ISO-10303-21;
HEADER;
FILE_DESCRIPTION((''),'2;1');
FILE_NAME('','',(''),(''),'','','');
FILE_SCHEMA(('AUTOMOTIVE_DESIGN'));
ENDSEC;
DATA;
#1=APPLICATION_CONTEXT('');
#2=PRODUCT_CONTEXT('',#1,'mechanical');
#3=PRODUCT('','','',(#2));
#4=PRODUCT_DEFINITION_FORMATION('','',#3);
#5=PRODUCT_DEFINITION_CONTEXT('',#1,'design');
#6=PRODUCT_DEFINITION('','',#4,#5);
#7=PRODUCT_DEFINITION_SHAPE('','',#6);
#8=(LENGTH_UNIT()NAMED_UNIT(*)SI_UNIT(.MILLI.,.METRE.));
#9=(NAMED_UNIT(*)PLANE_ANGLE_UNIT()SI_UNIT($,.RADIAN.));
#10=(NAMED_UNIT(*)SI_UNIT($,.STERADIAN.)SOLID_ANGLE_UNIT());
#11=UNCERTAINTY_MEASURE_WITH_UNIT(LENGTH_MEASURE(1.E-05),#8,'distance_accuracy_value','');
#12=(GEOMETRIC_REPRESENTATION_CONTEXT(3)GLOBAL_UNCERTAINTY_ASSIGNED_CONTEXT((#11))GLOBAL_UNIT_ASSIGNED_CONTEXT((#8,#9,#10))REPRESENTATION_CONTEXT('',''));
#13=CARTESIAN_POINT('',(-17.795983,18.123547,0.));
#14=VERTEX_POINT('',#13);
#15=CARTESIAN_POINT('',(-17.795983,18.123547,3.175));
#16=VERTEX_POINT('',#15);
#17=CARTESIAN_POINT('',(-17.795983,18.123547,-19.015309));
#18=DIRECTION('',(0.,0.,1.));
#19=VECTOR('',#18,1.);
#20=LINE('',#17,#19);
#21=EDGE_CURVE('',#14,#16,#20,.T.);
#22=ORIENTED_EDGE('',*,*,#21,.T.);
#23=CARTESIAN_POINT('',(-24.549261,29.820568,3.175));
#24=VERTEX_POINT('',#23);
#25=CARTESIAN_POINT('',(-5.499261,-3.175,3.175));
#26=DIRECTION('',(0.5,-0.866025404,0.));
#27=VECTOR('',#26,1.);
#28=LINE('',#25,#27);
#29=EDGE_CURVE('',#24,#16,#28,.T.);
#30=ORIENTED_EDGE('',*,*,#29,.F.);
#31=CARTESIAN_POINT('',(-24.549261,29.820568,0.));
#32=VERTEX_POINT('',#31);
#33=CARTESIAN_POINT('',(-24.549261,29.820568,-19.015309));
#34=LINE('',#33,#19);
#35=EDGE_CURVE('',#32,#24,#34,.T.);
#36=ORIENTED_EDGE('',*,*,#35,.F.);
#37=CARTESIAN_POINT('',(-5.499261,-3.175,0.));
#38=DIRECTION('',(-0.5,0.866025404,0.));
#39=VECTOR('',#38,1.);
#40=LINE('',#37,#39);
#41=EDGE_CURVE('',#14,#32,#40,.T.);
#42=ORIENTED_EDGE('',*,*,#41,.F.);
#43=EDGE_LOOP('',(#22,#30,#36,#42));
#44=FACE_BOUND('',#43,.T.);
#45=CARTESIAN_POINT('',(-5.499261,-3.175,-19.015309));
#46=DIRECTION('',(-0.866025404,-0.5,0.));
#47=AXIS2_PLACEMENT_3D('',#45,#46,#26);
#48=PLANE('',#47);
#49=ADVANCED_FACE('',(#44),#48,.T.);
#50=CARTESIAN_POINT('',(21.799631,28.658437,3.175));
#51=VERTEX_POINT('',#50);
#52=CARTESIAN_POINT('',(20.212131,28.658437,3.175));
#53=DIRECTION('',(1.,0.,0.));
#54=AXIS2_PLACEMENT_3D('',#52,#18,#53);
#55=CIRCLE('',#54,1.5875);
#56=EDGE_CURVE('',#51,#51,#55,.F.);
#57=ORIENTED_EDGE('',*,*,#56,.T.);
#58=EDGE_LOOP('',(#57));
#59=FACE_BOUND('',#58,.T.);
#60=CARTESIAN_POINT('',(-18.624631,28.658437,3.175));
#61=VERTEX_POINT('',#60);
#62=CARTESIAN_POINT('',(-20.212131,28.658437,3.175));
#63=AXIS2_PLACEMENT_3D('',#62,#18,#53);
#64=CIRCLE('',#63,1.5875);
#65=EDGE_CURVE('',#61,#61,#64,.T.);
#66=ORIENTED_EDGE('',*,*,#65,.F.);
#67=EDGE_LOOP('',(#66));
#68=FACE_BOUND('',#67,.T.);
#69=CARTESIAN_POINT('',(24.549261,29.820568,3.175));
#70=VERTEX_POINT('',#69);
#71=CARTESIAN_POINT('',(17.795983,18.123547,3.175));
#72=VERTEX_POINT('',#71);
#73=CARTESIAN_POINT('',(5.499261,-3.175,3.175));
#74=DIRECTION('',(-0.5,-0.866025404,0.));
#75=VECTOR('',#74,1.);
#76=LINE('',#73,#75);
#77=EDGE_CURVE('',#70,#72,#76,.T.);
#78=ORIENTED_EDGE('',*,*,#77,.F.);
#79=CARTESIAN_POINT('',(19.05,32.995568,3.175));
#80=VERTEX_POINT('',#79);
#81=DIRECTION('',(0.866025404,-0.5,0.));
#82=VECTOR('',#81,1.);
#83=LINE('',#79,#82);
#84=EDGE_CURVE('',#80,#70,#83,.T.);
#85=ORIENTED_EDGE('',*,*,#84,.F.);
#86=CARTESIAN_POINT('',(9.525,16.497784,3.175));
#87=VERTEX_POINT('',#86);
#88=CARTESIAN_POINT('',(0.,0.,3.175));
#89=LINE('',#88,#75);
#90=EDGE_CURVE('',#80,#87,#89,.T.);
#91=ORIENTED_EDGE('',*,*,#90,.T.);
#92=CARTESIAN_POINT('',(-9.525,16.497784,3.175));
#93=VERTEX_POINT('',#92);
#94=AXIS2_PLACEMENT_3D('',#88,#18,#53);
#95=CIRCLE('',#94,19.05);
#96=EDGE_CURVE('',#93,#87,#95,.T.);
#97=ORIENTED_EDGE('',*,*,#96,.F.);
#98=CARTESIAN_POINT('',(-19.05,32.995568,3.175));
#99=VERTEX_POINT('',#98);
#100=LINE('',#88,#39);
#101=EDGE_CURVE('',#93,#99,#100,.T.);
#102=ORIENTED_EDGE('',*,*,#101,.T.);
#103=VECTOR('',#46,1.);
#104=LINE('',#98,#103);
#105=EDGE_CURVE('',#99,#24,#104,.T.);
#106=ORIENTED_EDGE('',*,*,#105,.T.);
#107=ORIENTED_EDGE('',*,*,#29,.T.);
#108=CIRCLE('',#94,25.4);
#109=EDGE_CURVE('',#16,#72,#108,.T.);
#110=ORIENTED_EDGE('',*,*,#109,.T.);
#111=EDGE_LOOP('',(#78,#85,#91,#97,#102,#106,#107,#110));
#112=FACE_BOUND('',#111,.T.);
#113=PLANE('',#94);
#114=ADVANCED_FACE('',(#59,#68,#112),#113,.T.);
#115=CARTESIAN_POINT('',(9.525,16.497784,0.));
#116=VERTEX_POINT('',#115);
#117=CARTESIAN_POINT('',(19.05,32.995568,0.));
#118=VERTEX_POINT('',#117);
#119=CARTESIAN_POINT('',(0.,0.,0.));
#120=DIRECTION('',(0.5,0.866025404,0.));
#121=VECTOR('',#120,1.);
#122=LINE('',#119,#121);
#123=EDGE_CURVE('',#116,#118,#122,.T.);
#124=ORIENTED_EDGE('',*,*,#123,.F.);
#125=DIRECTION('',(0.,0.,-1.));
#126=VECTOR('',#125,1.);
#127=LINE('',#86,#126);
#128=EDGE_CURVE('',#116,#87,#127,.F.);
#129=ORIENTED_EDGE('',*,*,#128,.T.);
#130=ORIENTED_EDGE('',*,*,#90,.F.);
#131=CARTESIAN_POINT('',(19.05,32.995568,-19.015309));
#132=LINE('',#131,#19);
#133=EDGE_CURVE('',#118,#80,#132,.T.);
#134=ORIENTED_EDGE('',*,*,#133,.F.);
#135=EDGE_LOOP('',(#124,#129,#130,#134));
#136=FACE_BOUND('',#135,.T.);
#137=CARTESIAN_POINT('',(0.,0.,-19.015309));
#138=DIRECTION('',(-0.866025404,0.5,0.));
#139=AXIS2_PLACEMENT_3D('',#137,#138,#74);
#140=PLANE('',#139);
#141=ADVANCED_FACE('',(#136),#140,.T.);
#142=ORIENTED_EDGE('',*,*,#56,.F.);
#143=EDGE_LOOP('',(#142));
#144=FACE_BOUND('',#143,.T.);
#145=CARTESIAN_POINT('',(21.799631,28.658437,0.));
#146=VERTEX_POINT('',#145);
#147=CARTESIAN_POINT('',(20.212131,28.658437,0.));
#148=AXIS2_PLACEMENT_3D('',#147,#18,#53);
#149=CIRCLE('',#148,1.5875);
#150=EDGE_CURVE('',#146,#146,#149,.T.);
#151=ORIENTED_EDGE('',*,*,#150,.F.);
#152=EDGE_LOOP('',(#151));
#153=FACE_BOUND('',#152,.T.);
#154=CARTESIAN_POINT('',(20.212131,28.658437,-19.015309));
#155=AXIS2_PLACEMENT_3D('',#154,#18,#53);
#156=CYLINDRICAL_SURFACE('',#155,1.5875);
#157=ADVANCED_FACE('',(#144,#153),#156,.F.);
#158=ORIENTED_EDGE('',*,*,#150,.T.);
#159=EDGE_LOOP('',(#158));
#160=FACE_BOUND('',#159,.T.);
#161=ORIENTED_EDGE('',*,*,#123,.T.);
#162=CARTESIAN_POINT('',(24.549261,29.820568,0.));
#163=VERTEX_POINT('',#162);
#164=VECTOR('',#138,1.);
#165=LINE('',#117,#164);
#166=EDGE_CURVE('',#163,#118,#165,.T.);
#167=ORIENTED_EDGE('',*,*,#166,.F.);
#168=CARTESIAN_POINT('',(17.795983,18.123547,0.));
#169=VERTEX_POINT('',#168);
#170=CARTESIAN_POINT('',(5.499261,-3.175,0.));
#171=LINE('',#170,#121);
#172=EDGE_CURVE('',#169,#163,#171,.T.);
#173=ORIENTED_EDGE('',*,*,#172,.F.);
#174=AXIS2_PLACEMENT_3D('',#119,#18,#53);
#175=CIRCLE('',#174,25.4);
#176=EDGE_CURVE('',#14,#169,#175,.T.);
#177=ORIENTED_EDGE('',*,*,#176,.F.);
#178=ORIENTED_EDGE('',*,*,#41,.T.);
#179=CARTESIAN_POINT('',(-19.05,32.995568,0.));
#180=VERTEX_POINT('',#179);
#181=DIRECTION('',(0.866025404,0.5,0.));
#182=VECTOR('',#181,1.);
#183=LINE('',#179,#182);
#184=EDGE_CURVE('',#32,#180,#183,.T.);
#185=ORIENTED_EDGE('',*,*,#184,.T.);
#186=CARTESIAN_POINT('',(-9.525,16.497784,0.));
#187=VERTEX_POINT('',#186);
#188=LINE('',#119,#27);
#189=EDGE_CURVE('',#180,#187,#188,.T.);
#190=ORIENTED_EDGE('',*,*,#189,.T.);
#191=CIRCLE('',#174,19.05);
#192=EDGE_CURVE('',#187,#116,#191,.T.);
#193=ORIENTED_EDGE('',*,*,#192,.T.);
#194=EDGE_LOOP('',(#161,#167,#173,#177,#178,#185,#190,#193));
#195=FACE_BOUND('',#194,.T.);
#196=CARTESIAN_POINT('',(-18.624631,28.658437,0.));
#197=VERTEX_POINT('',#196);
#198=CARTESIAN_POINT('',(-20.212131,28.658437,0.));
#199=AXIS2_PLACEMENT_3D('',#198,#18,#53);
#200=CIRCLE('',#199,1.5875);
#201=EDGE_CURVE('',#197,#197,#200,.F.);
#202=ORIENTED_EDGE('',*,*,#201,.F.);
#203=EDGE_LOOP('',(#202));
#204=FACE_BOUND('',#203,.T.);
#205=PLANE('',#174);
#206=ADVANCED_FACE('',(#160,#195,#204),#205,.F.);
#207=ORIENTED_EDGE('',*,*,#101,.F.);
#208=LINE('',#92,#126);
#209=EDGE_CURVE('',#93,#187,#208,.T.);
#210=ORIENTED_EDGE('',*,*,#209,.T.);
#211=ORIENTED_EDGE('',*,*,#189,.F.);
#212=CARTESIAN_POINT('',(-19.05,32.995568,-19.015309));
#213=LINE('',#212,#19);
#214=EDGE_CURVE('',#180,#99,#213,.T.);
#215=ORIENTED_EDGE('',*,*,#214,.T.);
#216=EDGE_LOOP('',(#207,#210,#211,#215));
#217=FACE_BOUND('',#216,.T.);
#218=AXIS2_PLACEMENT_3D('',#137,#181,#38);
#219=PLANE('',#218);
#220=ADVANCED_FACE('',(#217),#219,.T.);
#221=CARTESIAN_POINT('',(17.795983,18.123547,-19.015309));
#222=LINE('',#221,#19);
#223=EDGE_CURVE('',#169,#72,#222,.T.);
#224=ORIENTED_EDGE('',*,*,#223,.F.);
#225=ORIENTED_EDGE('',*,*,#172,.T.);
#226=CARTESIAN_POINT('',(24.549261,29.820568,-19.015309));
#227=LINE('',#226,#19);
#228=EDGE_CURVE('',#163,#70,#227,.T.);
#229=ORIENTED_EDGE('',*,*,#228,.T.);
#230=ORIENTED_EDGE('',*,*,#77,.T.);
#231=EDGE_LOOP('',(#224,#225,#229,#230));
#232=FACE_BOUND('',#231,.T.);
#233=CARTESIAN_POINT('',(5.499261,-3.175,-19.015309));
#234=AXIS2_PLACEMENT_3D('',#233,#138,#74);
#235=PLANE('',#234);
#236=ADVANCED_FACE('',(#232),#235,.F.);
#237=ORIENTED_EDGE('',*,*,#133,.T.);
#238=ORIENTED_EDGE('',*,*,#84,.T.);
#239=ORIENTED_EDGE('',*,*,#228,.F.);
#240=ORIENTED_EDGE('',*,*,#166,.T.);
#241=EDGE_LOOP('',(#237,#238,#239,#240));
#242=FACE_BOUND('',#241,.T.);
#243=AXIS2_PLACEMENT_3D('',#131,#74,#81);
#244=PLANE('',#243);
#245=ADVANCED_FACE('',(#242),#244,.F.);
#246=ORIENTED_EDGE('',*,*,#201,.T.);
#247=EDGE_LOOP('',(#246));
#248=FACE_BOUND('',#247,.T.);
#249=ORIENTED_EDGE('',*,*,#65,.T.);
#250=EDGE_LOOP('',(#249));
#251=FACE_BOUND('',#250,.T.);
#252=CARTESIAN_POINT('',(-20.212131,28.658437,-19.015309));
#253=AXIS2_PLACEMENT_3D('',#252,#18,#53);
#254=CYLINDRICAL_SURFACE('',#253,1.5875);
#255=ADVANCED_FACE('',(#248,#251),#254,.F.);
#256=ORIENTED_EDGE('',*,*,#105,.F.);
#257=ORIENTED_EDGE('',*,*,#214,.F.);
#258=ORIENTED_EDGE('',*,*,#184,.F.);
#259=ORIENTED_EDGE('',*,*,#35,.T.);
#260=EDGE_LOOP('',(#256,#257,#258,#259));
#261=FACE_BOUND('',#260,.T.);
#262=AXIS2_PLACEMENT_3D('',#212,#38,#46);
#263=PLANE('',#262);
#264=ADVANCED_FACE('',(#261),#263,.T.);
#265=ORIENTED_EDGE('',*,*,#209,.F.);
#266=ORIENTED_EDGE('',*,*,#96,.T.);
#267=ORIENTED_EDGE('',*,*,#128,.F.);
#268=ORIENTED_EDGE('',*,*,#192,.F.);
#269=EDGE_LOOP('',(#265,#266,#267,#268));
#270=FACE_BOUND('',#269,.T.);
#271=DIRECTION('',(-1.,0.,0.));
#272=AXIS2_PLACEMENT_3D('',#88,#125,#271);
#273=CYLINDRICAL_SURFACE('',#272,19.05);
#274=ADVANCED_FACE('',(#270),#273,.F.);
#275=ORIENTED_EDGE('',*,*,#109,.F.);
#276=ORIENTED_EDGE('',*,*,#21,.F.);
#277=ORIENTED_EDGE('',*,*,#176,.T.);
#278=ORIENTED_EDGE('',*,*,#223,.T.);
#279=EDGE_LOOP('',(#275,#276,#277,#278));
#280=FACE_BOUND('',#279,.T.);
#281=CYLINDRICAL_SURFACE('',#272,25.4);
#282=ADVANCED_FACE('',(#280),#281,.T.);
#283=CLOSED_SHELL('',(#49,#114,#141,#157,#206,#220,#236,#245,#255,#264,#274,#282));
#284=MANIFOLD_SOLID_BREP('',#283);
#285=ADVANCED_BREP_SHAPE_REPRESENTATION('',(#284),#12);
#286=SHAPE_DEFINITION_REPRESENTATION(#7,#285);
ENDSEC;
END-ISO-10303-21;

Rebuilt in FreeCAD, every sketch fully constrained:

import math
import FreeCAD as App
import Part
import Sketcher
from FreeCAD import Vector
Q = App.Units.Quantity

doc = App.newDocument("Part")
body = doc.addObject("PartDesign::Body", "Body")

# Sketch on XY plane
sketch1 = body.newObject("Sketcher::SketchObject", "Sketch")
sketch1.AttachmentSupport = (doc.getObject("XY_Plane"), [""])
sketch1.MapMode = "FlatFace"
sketch1.addGeometry(Part.Circle(Vector(0, 0, 0), Vector(0, 0, 1), 25), False)
sketch1.addGeometry(Part.Circle(Vector(0, 0, 0), Vector(0, 0, 1), 19), False)
sketch1.addConstraint(Sketcher.Constraint("Coincident", 0, 3, -1, 1))
sketch1.addConstraint(Sketcher.Constraint("Coincident", 1, 3, -1, 1))
sketch1.addConstraint(Sketcher.Constraint("Diameter", 0, Q("2 in")))
sketch1.addConstraint(Sketcher.Constraint("Diameter", 1, Q("1.5 in")))
pad1 = body.newObject("PartDesign::Pad", "Pad")
pad1.Profile = sketch1
pad1.Length = Q("0.125 in")

# Sketch on XY plane
sketch2 = body.newObject("Sketcher::SketchObject", "Sketch001")
sketch2.AttachmentSupport = (doc.getObject("XY_Plane"), [""])
sketch2.MapMode = "FlatFace"
sketch2.AttachmentOffset = App.Placement(Vector(0, 0, 0.125 * 25.4), App.Rotation())
sketch2.addGeometry(Part.ArcOfCircle(Part.Circle(Vector(0, 0, 0), Vector(0, 0, 1), 25.4), math.radians(120), math.radians(134.48)), False)
sketch2.addGeometry(Part.LineSegment(Vector(-12.7, 22, 0), Vector(-19.1, 33, 0)), False)
sketch2.addGeometry(Part.LineSegment(Vector(-19.1, 33, 0), Vector(-24.5, 29.8, 0)), False)
sketch2.addGeometry(Part.LineSegment(Vector(-24.5, 29.8, 0), Vector(-18.2, 18.8, 0)), False)
sketch2.addGeometry(Part.LineSegment(Vector(-18.2, 18.8, 0), Vector(-17.8, 18.1, 0)), False)
sketch2.addGeometry(Part.Circle(Vector(-20.2, 28.7, 0), Vector(0, 0, 1), 1.6), False)
sketch2.addGeometry(Part.LineSegment(Vector(19.1, 33, 0), Vector(12.7, 22, 0)), False)
sketch2.addGeometry(Part.ArcOfCircle(Part.Circle(Vector(0, 0, 0), Vector(0, 0, 1), 25.4), math.radians(45.52), math.radians(60)), False)
sketch2.addGeometry(Part.LineSegment(Vector(17.8, 18.1, 0), Vector(18.2, 18.8, 0)), False)
sketch2.addGeometry(Part.LineSegment(Vector(18.2, 18.8, 0), Vector(24.5, 29.8, 0)), False)
sketch2.addGeometry(Part.LineSegment(Vector(24.5, 29.8, 0), Vector(19.1, 33, 0)), False)
sketch2.addGeometry(Part.Circle(Vector(20.2, 28.7, 0), Vector(0, 0, 1), 1.6), False)
sketch2.addConstraint(Sketcher.Constraint("Coincident", 0, 1, 1, 1))
sketch2.addConstraint(Sketcher.Constraint("Coincident", 1, 2, 2, 1))
sketch2.addConstraint(Sketcher.Constraint("Coincident", 2, 2, 3, 1))
sketch2.addConstraint(Sketcher.Constraint("Coincident", 3, 2, 4, 1))
sketch2.addConstraint(Sketcher.Constraint("Coincident", 4, 2, 0, 2))
sketch2.addConstraint(Sketcher.Constraint("Coincident", 6, 2, 7, 2))
sketch2.addConstraint(Sketcher.Constraint("Coincident", 7, 1, 8, 1))
sketch2.addConstraint(Sketcher.Constraint("Coincident", 8, 2, 9, 1))
sketch2.addConstraint(Sketcher.Constraint("Coincident", 9, 2, 10, 1))
sketch2.addConstraint(Sketcher.Constraint("Coincident", 10, 2, 6, 1))
sketch2.addConstraint(Sketcher.Constraint("Coincident", 0, 3, -1, 1))
sketch2.addConstraint(Sketcher.Constraint("Coincident", 7, 3, -1, 1))
sketch2.addConstraint(Sketcher.Constraint("Equal", 0, 7))
sketch2.addConstraint(Sketcher.Constraint("Equal", 5, 11))
sketch2.addConstraint(Sketcher.Constraint("Symmetric", 5, 3, 11, 3, -2))
sketch2.addConstraint(Sketcher.Constraint("Symmetric", 3, 2, 8, 2, -2))
sketch2.addConstraint(Sketcher.Constraint("Symmetric", 2, 2, 9, 2, -2))
sketch2.addConstraint(Sketcher.Constraint("Symmetric", 1, 2, 10, 2, -2))
sketch2.addConstraint(Sketcher.Constraint("Perpendicular", 1, 2))
sketch2.addConstraint(Sketcher.Constraint("Perpendicular", 2, 3))
sketch2.addConstraint(Sketcher.Constraint("Parallel", 3, 4))
sketch2.addConstraint(Sketcher.Constraint("Parallel", 6, 8))
sketch2.addConstraint(Sketcher.Constraint("Parallel", 8, 9))
sketch2.addConstraint(Sketcher.Constraint("Equal", 1, 3))
sketch2.addConstraint(Sketcher.Constraint("Radius", 0, Q("1 in")))
sketch2.addConstraint(Sketcher.Constraint("Diameter", 5, Q("0.125 in")))
sketch2.addConstraint(Sketcher.Constraint("Angle", 1, Q("120 deg")))
sketch2.addConstraint(Sketcher.Constraint("DistanceX", 0, 1, 6, 2, Q("1 in")))
sketch2.addConstraint(Sketcher.Constraint("Distance", 1, Q("0.5 in")))
sketch2.addConstraint(Sketcher.Constraint("Distance", 2, Q("0.25 in")))
sketch2.addConstraint(Sketcher.Constraint("DistanceX", 5, 3, -1, 1, Q("20.212131 mm")))
sketch2.addConstraint(Sketcher.Constraint("DistanceY", 0, 1, 5, 3, Q("6.661392 mm")))
pad2 = body.newObject("PartDesign::Pad", "Pad001")
pad2.Profile = sketch2
pad2.Length = Q("0.125 in")
pad2.Reversed = True

# Sketch on XY plane
sketch3 = body.newObject("Sketcher::SketchObject", "Sketch002")
sketch3.AttachmentSupport = (doc.getObject("XY_Plane"), [""])
sketch3.MapMode = "FlatFace"
sketch3.AttachmentOffset = App.Placement(Vector(0, 0, 0.125 * 25.4), App.Rotation())
sketch3.addGeometry(Part.LineSegment(Vector(-13, 22, 0), Vector(0, 0, 0)), False)
sketch3.addGeometry(Part.LineSegment(Vector(0, 0, 0), Vector(13, 22, 0)), False)
sketch3.addGeometry(Part.ArcOfCircle(Part.Circle(Vector(0, 0, 0), Vector(0, 0, 1), 25), math.radians(60), math.radians(120)), False)
sketch3.addConstraint(Sketcher.Constraint("Coincident", 0, 2, 1, 1))
sketch3.addConstraint(Sketcher.Constraint("Coincident", 1, 2, 2, 1))
sketch3.addConstraint(Sketcher.Constraint("Coincident", 2, 2, 0, 1))
sketch3.addConstraint(Sketcher.Constraint("Coincident", 2, 3, -1, 1))
sketch3.addConstraint(Sketcher.Constraint("Coincident", 0, 2, -1, 1))
sketch3.addConstraint(Sketcher.Constraint("Horizontal", 1, 2, 2, 2))
sketch3.addConstraint(Sketcher.Constraint("Radius", 2, Q("1 in")))
sketch3.addConstraint(Sketcher.Constraint("Angle", 0, Q("-60 deg")))
pocket1 = body.newObject("PartDesign::Pocket", "Pocket")
pocket1.Profile = sketch3
pocket1.Length = Q("0.125 in")

doc.recompute()
